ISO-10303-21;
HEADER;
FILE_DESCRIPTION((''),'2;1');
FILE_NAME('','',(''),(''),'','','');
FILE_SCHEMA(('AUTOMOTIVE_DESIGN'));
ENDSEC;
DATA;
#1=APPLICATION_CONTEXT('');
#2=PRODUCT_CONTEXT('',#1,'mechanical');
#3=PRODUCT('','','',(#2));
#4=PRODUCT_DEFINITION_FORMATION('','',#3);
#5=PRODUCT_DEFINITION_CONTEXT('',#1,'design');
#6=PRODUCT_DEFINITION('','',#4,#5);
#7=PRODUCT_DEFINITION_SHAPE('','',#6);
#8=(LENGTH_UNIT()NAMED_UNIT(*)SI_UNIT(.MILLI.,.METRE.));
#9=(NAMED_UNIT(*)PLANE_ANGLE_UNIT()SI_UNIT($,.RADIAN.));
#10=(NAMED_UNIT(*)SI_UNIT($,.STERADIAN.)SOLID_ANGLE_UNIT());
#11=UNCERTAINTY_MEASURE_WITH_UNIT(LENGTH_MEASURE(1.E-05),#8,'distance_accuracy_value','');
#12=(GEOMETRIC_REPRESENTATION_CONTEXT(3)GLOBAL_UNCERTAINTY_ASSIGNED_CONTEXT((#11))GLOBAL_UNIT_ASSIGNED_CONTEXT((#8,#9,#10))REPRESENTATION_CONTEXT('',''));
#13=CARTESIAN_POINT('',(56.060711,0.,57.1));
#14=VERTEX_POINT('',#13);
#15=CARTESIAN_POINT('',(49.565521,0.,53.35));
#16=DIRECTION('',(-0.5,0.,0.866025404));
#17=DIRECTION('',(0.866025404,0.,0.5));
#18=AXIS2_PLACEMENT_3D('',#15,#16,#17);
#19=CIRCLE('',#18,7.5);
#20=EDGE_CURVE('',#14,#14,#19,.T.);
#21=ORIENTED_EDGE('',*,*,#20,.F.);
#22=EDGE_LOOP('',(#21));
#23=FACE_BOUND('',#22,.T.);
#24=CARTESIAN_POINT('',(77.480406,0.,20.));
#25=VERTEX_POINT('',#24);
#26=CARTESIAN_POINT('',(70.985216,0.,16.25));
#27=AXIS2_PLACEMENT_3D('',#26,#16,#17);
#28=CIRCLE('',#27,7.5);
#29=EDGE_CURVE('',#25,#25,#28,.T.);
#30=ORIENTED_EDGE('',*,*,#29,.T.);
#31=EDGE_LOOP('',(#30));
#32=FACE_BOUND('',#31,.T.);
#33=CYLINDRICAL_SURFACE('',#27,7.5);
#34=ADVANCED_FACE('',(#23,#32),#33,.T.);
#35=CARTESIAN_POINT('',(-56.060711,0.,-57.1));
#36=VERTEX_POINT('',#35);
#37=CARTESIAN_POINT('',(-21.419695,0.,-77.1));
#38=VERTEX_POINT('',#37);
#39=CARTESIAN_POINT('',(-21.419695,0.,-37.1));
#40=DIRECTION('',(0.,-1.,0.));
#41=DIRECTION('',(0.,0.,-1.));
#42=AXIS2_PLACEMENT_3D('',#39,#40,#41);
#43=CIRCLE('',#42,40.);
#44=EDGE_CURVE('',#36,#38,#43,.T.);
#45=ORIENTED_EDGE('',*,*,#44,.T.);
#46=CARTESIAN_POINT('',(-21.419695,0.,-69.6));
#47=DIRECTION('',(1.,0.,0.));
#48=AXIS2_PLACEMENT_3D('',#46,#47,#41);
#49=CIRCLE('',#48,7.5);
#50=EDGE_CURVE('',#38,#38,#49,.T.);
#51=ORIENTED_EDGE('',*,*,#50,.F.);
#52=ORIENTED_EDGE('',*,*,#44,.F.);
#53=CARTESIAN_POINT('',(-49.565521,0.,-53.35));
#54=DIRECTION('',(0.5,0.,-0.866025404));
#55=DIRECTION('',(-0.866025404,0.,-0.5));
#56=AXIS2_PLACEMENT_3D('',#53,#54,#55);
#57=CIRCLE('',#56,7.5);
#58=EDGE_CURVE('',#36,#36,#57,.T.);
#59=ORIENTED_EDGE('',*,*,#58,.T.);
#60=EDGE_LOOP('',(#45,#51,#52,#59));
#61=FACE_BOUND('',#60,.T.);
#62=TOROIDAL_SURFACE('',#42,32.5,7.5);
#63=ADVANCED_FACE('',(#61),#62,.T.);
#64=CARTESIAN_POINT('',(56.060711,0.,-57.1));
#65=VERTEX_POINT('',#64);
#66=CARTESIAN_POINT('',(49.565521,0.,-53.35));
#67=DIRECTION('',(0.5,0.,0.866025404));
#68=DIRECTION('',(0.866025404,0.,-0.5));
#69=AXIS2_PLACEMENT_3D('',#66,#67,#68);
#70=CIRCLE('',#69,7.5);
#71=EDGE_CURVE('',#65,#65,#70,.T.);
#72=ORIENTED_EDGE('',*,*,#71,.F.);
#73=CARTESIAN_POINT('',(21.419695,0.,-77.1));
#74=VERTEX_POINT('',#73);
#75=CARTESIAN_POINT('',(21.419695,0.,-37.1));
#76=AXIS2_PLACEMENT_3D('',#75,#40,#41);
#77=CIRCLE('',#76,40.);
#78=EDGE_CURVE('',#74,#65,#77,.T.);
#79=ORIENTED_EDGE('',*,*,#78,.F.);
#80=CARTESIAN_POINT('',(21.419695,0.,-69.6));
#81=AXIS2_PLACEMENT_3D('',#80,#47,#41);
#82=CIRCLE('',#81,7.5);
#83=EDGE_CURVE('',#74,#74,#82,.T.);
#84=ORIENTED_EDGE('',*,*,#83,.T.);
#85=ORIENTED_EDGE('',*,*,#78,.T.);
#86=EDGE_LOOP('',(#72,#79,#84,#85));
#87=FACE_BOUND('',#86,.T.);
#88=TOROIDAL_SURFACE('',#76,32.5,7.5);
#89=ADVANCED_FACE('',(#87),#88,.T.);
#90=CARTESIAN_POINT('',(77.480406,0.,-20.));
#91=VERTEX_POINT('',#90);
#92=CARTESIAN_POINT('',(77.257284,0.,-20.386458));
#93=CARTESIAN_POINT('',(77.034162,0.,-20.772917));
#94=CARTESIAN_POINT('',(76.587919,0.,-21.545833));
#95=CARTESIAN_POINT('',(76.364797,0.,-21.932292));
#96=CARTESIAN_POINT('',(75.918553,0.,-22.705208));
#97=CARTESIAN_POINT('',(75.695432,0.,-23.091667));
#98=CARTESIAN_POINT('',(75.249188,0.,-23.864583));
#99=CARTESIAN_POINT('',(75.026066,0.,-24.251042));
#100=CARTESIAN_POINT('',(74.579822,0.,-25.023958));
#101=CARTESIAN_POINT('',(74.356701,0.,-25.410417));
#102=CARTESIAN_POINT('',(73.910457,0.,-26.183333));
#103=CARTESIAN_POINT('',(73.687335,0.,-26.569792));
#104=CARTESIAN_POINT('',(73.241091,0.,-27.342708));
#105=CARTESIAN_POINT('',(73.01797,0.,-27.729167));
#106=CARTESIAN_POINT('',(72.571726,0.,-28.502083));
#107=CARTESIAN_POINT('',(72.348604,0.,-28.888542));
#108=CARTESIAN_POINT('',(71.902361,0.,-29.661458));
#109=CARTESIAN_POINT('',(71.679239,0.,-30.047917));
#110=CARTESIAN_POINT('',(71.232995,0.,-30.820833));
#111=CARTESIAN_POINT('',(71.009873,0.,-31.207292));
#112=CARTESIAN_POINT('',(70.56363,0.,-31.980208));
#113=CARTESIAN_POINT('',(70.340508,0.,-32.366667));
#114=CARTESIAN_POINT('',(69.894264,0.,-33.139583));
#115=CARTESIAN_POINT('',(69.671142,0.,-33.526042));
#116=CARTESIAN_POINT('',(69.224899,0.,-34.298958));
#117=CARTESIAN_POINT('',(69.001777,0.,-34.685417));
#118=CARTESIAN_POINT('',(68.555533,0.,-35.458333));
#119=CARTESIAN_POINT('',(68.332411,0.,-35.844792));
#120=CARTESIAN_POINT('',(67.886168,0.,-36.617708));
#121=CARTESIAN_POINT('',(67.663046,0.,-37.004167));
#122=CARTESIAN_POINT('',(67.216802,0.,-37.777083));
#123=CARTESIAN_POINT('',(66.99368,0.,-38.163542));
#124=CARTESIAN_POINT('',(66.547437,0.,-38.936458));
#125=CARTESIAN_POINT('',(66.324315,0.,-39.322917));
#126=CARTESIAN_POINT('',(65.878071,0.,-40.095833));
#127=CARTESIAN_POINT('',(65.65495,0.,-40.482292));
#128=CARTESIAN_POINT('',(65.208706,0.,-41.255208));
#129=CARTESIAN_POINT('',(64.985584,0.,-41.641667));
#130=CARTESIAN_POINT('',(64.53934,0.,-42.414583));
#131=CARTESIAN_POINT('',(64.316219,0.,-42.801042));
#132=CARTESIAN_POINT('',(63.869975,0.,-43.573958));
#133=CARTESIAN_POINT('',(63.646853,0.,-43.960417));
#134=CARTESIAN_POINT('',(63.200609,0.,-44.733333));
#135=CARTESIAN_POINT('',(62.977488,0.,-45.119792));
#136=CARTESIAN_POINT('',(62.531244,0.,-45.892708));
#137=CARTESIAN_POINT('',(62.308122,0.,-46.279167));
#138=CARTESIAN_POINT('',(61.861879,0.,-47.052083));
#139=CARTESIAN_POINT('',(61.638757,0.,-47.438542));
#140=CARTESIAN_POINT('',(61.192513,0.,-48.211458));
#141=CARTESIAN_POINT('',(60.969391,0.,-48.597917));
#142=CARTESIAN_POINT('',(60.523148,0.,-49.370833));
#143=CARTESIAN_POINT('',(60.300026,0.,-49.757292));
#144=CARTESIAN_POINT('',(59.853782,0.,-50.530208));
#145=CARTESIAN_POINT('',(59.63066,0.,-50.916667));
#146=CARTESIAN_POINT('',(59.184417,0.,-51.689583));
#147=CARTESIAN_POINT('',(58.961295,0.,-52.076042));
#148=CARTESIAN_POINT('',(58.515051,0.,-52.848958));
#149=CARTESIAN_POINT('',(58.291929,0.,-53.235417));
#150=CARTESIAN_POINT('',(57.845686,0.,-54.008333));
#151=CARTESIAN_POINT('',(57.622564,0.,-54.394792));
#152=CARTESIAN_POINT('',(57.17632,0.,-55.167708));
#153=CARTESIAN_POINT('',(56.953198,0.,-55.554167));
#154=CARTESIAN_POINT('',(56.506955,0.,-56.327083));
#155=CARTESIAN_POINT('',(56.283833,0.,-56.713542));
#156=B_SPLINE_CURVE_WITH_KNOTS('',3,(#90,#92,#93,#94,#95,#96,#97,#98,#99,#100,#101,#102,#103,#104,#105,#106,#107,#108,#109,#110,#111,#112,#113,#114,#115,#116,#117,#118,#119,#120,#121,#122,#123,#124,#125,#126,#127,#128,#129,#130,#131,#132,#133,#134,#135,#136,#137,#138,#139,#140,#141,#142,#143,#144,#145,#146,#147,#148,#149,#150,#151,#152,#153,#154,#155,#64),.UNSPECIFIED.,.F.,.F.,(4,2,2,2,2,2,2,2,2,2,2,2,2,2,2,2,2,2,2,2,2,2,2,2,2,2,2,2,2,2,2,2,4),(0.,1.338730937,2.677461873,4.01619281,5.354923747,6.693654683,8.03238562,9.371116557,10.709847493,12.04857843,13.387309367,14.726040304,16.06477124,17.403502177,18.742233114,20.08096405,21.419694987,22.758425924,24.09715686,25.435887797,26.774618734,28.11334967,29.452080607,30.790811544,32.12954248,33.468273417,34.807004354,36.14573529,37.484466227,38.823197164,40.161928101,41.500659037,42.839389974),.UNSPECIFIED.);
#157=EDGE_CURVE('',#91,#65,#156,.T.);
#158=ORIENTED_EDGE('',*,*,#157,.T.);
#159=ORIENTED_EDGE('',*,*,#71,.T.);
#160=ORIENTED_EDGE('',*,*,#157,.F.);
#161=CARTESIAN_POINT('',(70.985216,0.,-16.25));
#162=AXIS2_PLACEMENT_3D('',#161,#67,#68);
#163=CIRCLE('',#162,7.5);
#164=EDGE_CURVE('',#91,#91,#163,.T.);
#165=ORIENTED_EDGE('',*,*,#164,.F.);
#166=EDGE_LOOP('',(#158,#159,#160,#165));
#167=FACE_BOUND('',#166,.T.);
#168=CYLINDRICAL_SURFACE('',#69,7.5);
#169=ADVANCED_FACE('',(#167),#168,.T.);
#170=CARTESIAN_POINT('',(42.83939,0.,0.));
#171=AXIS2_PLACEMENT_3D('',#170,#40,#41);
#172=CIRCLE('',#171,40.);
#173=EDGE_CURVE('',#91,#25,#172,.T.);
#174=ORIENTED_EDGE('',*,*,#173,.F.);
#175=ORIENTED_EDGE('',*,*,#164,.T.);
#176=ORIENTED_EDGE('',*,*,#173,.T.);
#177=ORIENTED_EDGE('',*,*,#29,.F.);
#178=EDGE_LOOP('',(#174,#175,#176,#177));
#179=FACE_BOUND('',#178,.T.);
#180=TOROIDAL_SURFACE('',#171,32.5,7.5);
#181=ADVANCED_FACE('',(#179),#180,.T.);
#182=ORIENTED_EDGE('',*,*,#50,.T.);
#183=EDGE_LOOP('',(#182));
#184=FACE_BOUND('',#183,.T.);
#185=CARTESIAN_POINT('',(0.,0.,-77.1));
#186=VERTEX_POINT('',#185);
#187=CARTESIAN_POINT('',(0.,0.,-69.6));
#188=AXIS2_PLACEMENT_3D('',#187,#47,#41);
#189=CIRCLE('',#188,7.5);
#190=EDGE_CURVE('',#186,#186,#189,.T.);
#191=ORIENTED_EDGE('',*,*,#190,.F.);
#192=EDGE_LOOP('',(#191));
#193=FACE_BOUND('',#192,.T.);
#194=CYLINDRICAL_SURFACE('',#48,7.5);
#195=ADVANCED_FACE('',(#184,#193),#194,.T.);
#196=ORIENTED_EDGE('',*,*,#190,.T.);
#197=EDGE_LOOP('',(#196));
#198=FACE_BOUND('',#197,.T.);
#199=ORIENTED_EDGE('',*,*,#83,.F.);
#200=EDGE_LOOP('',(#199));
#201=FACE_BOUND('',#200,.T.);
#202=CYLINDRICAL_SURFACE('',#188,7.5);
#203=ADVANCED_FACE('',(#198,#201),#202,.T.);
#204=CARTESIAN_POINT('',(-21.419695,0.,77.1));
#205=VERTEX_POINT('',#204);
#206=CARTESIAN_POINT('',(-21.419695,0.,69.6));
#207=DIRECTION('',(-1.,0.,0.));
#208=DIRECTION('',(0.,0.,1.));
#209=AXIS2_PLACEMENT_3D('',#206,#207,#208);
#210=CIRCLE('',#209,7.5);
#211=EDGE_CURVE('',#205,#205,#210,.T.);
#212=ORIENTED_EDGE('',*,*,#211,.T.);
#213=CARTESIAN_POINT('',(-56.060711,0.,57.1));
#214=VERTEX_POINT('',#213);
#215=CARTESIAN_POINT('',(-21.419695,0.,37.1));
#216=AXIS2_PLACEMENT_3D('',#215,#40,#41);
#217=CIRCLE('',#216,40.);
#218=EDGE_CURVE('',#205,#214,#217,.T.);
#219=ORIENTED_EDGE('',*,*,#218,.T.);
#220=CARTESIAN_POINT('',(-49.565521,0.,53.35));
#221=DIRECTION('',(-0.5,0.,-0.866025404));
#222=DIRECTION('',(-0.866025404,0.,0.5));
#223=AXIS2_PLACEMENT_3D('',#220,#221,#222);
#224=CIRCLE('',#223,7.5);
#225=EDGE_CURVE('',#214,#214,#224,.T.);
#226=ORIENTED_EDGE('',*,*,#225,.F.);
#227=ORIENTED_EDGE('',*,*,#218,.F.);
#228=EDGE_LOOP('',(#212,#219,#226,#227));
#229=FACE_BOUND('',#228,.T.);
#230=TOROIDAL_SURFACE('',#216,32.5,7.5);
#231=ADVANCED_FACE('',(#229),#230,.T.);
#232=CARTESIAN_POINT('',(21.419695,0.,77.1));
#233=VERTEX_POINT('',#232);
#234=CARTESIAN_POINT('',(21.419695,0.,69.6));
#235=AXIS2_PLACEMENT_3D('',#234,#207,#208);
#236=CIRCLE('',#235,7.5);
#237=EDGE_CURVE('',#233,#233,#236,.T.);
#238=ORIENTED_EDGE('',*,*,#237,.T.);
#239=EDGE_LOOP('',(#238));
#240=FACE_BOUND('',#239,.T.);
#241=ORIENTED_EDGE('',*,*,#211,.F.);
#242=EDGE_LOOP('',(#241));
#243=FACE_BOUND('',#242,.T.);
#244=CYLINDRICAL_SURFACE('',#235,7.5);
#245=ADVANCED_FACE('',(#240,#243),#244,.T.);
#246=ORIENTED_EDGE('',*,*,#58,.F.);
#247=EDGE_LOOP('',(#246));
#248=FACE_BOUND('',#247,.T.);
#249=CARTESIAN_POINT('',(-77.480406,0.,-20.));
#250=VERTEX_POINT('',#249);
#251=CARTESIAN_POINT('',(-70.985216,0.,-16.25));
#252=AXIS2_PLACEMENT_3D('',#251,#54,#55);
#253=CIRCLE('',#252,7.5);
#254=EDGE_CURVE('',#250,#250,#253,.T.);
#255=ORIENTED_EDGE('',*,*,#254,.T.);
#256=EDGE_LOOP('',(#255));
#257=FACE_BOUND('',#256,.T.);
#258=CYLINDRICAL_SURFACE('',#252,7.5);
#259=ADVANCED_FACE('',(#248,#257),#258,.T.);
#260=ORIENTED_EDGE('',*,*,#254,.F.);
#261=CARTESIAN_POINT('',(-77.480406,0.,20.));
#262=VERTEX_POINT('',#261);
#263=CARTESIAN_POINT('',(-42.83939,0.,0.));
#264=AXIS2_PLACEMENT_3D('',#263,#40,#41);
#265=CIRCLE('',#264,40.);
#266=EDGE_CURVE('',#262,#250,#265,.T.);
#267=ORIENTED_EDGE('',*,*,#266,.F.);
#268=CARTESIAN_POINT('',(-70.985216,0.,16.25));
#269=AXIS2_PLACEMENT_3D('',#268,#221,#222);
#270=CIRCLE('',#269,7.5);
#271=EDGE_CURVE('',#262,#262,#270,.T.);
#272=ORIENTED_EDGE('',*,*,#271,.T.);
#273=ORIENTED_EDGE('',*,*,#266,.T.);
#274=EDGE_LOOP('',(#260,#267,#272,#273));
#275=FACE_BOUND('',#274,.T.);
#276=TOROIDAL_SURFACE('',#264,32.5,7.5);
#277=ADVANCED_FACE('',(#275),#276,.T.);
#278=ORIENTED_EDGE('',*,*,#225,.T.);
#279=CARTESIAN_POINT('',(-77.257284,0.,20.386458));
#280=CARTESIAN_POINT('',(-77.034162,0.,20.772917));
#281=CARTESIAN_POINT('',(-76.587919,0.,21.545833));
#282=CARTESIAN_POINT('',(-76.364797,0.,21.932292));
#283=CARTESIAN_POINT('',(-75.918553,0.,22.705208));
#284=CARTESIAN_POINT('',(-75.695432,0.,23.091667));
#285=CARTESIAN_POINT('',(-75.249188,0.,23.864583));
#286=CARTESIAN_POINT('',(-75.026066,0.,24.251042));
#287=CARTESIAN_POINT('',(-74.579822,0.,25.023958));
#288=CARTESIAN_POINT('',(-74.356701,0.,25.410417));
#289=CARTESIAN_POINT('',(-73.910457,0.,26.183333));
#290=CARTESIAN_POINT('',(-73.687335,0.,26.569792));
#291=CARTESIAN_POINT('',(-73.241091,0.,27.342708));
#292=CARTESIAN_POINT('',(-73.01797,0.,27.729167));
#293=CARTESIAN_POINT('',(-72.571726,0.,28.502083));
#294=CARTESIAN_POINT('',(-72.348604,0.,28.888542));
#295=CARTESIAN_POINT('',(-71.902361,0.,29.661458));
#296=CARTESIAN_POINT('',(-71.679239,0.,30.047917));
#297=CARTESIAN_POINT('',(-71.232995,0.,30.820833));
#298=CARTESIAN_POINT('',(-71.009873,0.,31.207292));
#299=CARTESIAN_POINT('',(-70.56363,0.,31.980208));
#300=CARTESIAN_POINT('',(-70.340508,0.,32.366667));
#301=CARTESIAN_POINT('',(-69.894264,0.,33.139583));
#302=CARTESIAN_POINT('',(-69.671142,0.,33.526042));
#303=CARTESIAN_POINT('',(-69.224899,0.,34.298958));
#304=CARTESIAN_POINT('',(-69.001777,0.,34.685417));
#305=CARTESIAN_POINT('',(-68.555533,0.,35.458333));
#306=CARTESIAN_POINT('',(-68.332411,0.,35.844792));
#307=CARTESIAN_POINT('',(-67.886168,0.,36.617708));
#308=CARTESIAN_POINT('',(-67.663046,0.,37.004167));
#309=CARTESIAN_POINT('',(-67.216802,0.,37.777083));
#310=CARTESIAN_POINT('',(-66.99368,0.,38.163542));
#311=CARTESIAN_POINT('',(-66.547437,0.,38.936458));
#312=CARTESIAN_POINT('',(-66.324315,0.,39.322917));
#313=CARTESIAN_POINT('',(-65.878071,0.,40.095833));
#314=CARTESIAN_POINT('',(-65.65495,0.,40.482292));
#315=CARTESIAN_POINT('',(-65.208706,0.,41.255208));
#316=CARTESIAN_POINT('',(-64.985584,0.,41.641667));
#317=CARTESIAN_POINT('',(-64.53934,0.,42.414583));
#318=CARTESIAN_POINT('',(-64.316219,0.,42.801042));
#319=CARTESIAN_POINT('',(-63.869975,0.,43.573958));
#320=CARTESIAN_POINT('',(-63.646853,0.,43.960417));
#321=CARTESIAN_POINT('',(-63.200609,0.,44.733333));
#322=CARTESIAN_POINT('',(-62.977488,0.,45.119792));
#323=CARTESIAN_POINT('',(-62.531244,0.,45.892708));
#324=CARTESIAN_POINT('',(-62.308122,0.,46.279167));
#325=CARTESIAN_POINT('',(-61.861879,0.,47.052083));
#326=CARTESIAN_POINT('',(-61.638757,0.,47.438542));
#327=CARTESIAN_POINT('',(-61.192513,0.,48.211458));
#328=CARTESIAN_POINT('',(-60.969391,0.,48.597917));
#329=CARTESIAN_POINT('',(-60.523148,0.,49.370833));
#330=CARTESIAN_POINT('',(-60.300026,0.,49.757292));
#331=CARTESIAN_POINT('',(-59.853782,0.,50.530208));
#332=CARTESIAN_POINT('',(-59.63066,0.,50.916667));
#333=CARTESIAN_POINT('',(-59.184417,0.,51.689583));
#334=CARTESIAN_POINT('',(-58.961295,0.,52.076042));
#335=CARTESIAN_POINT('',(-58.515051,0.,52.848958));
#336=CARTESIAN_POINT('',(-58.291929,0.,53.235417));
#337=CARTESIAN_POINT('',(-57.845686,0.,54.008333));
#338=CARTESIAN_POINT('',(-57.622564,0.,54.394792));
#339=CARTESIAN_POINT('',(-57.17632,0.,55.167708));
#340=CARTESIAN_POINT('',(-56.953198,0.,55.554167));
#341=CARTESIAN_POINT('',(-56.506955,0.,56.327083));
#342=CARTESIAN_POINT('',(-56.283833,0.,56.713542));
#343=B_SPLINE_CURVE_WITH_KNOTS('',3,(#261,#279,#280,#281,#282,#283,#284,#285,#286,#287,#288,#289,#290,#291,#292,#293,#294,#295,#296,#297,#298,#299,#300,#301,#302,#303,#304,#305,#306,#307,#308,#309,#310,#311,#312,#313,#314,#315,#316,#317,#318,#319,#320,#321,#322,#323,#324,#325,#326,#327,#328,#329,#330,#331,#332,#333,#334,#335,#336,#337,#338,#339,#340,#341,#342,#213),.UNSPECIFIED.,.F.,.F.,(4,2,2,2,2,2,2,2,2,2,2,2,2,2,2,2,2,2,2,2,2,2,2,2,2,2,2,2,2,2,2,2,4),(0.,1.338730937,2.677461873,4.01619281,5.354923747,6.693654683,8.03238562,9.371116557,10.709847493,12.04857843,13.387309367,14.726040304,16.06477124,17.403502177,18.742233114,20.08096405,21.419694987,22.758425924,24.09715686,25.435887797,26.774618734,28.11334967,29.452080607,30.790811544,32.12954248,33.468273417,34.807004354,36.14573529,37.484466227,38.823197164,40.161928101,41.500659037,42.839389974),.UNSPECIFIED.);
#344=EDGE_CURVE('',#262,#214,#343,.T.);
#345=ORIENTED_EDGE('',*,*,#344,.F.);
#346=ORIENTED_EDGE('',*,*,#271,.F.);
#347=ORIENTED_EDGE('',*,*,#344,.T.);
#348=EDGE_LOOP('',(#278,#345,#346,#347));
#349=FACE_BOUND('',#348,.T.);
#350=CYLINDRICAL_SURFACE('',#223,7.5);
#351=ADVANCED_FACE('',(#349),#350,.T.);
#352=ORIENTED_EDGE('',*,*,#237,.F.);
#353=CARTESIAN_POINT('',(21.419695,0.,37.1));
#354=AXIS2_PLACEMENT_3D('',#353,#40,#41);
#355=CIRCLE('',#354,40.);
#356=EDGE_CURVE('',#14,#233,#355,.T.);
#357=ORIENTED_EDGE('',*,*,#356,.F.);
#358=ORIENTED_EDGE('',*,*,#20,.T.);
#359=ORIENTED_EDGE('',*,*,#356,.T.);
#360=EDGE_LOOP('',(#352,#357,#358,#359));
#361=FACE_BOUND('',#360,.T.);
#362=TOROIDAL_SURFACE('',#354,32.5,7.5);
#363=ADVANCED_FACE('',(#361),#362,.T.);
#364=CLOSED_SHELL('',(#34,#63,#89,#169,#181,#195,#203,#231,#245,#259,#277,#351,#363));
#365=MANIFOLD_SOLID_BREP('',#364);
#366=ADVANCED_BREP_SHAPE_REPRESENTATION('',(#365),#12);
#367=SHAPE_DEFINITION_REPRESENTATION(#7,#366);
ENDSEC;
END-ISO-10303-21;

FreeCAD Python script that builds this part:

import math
import FreeCAD as App
import Part
import Sketcher
Q = App.Units.Quantity

doc = App.newDocument("Part")
params = doc.addObject("Spreadsheet::Sheet", "Params")
for row, (alias, value) in enumerate([
    ("sketch1_diameter", "15 mm"),
    ("sketch2_radius", "25 mm"),
], start=1):
    params.set(f"A{row}", alias)
    params.set(f"B{row}", "=" + value)
    params.setAlias(f"B{row}", alias)

body = doc.addObject("PartDesign::Body", "Body")

# Sketch on YZ plane
sketch1 = body.newObject("Sketcher::SketchObject", "Sketch")
sketch1.AttachmentSupport = (doc.getObject("YZ_Plane"), [""])
sketch1.MapMode = "FlatFace"
sketch1.addGeometry(Part.Circle(App.Vector(0, -69.6, 0), App.Vector(0, 0, 1), 7.5), False)
sketch1.addConstraint([
    Sketcher.Constraint("PointOnObject", 0, 3, -2),
    Sketcher.Constraint("Diameter", 0, Q("15 mm")),
    Sketcher.Constraint("DistanceY", 0, 3, -1, 1, Q("69.6 mm")),
])
sketch1.setExpression("Constraints[1]", "Params.sketch1_diameter")

# Sketch on XZ plane
sketch2 = body.newObject("Sketcher::SketchObject", "Sketch001")
sketch2.AttachmentSupport = (doc.getObject("XZ_Plane"), [""])
sketch2.MapMode = "FlatFace"
sketch2.addGeometry([
    Part.LineSegment(App.Vector(64.490025, -12.5, 0), App.Vector(43.07033, -49.6, 0)),  # 0
    Part.ArcOfCircle(Part.Circle(App.Vector(21.419695, -37.1, 0), App.Vector(0, 0, 1), 25), math.radians(-90), math.radians(-30)),  # 1
    Part.LineSegment(App.Vector(21.419695, -62.1, 0), App.Vector(-21.419695, -62.1, 0)),  # 2
    Part.ArcOfCircle(Part.Circle(App.Vector(-21.419695, -37.1, 0), App.Vector(0, 0, 1), 25), math.radians(-150), math.radians(-90)),  # 3
    Part.LineSegment(App.Vector(-43.07033, -49.6, 0), App.Vector(-64.490025, -12.5, 0)),  # 4
    Part.ArcOfCircle(Part.Circle(App.Vector(-42.83939, 0, 0), App.Vector(0, 0, 1), 25), math.radians(150), math.radians(210)),  # 5
    Part.LineSegment(App.Vector(-64.490025, 12.5, 0), App.Vector(-43.07033, 49.6, 0)),  # 6
    Part.ArcOfCircle(Part.Circle(App.Vector(-21.419695, 37.1, 0), App.Vector(0, 0, 1), 25), math.radians(90), math.radians(150)),  # 7
    Part.LineSegment(App.Vector(-21.419695, 62.1, 0), App.Vector(21.419695, 62.1, 0)),  # 8
    Part.ArcOfCircle(Part.Circle(App.Vector(21.419695, 37.1, 0), App.Vector(0, 0, 1), 25), math.radians(30), math.radians(90)),  # 9
    Part.LineSegment(App.Vector(43.07033, 49.6, 0), App.Vector(64.490025, 12.5, 0)),  # 10
    Part.ArcOfCircle(Part.Circle(App.Vector(42.83939, 0, 0), App.Vector(0, 0, 1), 25), math.radians(-30), math.radians(30)),  # 11
], False)
sketch2.addConstraint([
    Sketcher.Constraint("Tangent", 0, 2, 1, 2),
    Sketcher.Constraint("Tangent", 1, 1, 2, 1),
    Sketcher.Constraint("Tangent", 2, 2, 3, 2),
    Sketcher.Constraint("Tangent", 3, 1, 4, 1),
    Sketcher.Constraint("Tangent", 4, 2, 5, 2),
    Sketcher.Constraint("Tangent", 5, 1, 6, 1),
    Sketcher.Constraint("Tangent", 6, 2, 7, 2),
    Sketcher.Constraint("Tangent", 7, 1, 8, 1),
    Sketcher.Constraint("Tangent", 8, 2, 9, 2),
    Sketcher.Constraint("Tangent", 9, 1, 10, 1),
    Sketcher.Constraint("Tangent", 10, 2, 11, 2),
    Sketcher.Constraint("Tangent", 11, 1, 0, 1),
    Sketcher.Constraint("Horizontal", 2),
    Sketcher.Constraint("Horizontal", 8),
    Sketcher.Constraint("Equal", 1, 3),
    Sketcher.Constraint("Equal", 3, 5),
    Sketcher.Constraint("Equal", 5, 7),
    Sketcher.Constraint("Equal", 7, 9),
    Sketcher.Constraint("Equal", 9, 11),
    Sketcher.Constraint("Symmetric", 1, 3, 7, 3, -1, 1),
    Sketcher.Constraint("Symmetric", 5, 3, 11, 3, -1, 1),
    Sketcher.Constraint("Symmetric", 0, 2, 3, 1, -2),
    Sketcher.Constraint("Parallel", 4, 10),
    Sketcher.Constraint("Radius", 1, Q("25 mm")),
    Sketcher.Constraint("Angle", 0, Q("-120 deg")),
    Sketcher.Constraint("DistanceY", 1, 3, -1, 1, Q("37.1 mm")),
    Sketcher.Constraint("DistanceX", 2, 2, 2, 1, Q("42.83939 mm")),
])
sketch2.setExpression("Constraints[23]", "Params.sketch2_radius")
doc.recompute()

additivepipe = body.newObject("PartDesign::AdditivePipe", "AdditivePipe")
additivepipe.Profile = sketch1
additivepipe.Spine = (sketch2, ["Edge1", "Edge2", "Edge3", "Edge4", "Edge5", "Edge6", "Edge7", "Edge8", "Edge9", "Edge10", "Edge11", "Edge12"])

doc.recompute()
